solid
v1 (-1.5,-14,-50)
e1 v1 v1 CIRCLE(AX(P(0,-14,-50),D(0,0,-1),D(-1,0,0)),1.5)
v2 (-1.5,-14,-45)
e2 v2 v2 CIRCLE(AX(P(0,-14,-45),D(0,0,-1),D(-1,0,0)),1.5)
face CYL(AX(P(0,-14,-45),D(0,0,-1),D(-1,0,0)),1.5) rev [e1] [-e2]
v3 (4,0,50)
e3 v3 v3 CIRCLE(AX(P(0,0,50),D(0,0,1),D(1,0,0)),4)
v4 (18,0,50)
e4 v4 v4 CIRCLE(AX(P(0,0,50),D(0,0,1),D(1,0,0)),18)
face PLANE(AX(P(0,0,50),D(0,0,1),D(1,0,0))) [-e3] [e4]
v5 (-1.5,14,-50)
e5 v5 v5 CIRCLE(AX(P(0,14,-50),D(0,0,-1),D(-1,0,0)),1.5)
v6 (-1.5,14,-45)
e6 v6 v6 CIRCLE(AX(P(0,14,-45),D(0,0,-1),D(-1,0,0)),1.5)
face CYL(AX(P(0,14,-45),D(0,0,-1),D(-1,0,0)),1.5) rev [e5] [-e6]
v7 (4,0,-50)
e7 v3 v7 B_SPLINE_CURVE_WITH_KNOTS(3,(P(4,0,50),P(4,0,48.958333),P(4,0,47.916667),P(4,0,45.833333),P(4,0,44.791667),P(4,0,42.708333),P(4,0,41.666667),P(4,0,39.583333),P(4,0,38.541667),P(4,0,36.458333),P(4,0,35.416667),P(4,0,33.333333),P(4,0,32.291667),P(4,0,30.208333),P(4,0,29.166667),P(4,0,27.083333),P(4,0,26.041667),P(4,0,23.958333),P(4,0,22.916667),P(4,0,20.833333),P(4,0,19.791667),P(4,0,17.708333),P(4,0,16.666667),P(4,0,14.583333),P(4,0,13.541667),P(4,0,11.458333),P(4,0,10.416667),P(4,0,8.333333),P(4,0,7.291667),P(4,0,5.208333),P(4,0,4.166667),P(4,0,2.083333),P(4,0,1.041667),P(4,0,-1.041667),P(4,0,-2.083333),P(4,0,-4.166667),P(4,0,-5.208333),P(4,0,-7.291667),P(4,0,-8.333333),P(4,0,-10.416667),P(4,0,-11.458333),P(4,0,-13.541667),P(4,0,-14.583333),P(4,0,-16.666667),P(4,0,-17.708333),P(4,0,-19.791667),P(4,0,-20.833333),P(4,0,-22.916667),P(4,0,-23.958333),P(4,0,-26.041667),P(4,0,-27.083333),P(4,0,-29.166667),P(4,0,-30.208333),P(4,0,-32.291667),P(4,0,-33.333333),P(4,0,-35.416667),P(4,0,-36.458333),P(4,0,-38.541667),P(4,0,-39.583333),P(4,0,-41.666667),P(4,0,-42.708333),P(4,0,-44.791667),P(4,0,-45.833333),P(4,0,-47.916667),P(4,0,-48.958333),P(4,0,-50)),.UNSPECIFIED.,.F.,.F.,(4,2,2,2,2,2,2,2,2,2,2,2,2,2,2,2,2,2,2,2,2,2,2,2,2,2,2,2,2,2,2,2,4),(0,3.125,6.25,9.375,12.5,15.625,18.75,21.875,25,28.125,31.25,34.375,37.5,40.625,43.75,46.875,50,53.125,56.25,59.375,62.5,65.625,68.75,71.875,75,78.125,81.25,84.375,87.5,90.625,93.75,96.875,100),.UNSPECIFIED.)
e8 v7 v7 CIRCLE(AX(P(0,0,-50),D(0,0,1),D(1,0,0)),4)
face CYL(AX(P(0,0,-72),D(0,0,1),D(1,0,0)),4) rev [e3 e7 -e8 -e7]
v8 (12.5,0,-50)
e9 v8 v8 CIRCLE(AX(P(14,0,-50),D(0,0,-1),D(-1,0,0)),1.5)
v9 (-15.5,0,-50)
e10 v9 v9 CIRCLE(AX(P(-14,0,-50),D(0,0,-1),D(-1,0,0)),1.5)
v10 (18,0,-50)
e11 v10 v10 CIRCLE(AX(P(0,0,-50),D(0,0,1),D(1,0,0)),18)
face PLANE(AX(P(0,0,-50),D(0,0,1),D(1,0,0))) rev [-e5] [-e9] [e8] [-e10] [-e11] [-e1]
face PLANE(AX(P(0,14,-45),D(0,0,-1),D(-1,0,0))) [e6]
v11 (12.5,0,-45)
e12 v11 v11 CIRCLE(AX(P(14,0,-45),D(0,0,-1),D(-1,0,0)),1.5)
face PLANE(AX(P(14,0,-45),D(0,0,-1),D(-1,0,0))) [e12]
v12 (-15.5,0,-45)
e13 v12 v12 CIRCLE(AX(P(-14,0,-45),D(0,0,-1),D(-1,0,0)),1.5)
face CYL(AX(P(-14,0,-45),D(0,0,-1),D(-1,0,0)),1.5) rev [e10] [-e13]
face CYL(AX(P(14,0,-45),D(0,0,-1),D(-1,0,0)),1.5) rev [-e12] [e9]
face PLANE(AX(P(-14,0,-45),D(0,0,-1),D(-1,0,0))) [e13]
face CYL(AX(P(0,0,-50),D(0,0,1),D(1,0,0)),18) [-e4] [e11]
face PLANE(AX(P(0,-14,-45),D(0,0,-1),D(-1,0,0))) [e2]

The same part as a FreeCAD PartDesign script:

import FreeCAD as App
import Part
import Sketcher

V = App.Vector

doc = App.newDocument("Part")
body = doc.addObject("PartDesign::Body", "Body")

sketch1 = body.newObject("Sketcher::SketchObject", "Sketch")
sketch1.AttachmentSupport = (doc.getObject("XY_Plane"), [""])
sketch1.MapMode = "FlatFace"
sketch1.addGeometry(Part.Circle(V(0, 0, 0), V(0, 0, 1), 18), False)
sketch1.addConstraint([
    Sketcher.Constraint("Coincident", 0, 3, -1, 1),
    Sketcher.Constraint("Diameter", 0, 36.0),
])
pad1 = body.newObject("PartDesign::Pad", "Pad")
pad1.Profile = sketch1
pad1.Type = "TwoLengths"
pad1.Length = 50
pad1.Length2 = 50

sketch2 = body.newObject("Sketcher::SketchObject", "Sketch001")
sketch2.AttachmentSupport = (doc.getObject("XY_Plane"), [""])
sketch2.MapMode = "FlatFace"
sketch2.AttachmentOffset = App.Placement(V(0, 0, 50), App.Rotation())
sketch2.addGeometry(Part.Circle(V(0, 0, 0), V(0, 0, 1), 4), False)
sketch2.addConstraint([
    Sketcher.Constraint("Coincident", 0, 3, -1, 1),
    Sketcher.Constraint("Diameter", 0, 8.0),
])
pocket1 = body.newObject("PartDesign::Pocket", "Pocket")
pocket1.Profile = sketch2
pocket1.Length = 122

sketch3 = body.newObject("Sketcher::SketchObject", "Sketch002")
sketch3.AttachmentSupport = (doc.getObject("XY_Plane"), [""])
sketch3.MapMode = "FlatFace"
sketch3.AttachmentOffset = App.Placement(V(0, 0, -50), App.Rotation())
sketch3.addGeometry([
    Part.Circle(V(0, 14, 0), V(0, 0, 1), 1.5),
    Part.Circle(V(-14, 0, 0), V(0, 0, 1), 1.5),
    Part.Circle(V(0, -14, 0), V(0, 0, 1), 1.5),
    Part.Circle(V(14, 0, 0), V(0, 0, 1), 1.5),
], False)
sketch3.addConstraint([
    Sketcher.Constraint("Equal", 0, 1),
    Sketcher.Constraint("Equal", 1, 2),
    Sketcher.Constraint("Equal", 2, 3),
    Sketcher.Constraint("Symmetric", 0, 3, 2, 3, -1, 1),
    Sketcher.Constraint("Symmetric", 1, 3, 3, 3, -1, 1),
    Sketcher.Constraint("PointOnObject", 0, 3, -2),
    Sketcher.Constraint("PointOnObject", 1, 3, -1),
    Sketcher.Constraint("Diameter", 0, 3.0),
    Sketcher.Constraint("DistanceY", -1, 1, 0, 3, 14.0),
    Sketcher.Constraint("DistanceX", 1, 3, -1, 1, 14.0),
])
pocket2 = body.newObject("PartDesign::Pocket", "Pocket001")
pocket2.Profile = sketch3
pocket2.Length = 5
pocket2.Reversed = True

doc.recompute()
